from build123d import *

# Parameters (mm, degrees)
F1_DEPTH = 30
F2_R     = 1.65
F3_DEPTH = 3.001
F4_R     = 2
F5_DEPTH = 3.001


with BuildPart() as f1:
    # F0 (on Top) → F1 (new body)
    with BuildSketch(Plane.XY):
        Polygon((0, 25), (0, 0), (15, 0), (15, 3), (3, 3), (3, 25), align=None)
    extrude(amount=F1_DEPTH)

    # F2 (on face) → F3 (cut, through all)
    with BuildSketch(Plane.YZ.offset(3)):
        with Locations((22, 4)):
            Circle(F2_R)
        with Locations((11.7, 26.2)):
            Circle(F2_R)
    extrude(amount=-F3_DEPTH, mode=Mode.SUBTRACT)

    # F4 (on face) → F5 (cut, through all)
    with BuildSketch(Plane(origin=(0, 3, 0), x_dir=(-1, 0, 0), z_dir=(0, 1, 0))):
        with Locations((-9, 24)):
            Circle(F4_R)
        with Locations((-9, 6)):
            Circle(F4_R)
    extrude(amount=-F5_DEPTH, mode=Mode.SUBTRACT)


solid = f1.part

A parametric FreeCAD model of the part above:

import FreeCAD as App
import Part
import Sketcher
from FreeCAD import Vector
Q = App.Units.Quantity

doc = App.newDocument("Part")
body = doc.addObject("PartDesign::Body", "Body")

sketch1 = doc.addObject("Sketcher::SketchObject", "Sketch")
body.addObject(sketch1)
sketch1.AttachmentSupport = (doc.XY_Plane, [""])
sketch1.MapMode = "FlatFace"
sketch1.addGeometry([
    Part.LineSegment(Vector(0, 25, 0), Vector(0, 0, 0)),
    Part.LineSegment(Vector(0, 0, 0), Vector(15, 0, 0)),
    Part.LineSegment(Vector(15, 0, 0), Vector(15, 3, 0)),
    Part.LineSegment(Vector(15, 3, 0), Vector(3, 3, 0)),
    Part.LineSegment(Vector(3, 3, 0), Vector(3, 25, 0)),
    Part.LineSegment(Vector(3, 25, 0), Vector(0, 25, 0)),
], False)
sketch1.addConstraint([
    Sketcher.Constraint("Coincident", 0, 2, 1, 1),
    Sketcher.Constraint("Coincident", 1, 2, 2, 1),
    Sketcher.Constraint("Coincident", 2, 2, 3, 1),
    Sketcher.Constraint("Coincident", 3, 2, 4, 1),
    Sketcher.Constraint("Coincident", 4, 2, 5, 1),
    Sketcher.Constraint("Coincident", 5, 2, 0, 1),
    Sketcher.Constraint("Vertical", 0),
    Sketcher.Constraint("Horizontal", 1),
    Sketcher.Constraint("Vertical", 2),
    Sketcher.Constraint("Horizontal", 3),
    Sketcher.Constraint("Vertical", 4),
    Sketcher.Constraint("Horizontal", 5),
    Sketcher.Constraint("Coincident", 0, 2, -1, 1),
    Sketcher.Constraint("Equal", 5, 2),
    Sketcher.Constraint("DistanceX", 1, 1, 1, 2, Q("15 mm")),
    Sketcher.Constraint("DistanceX", 3, 2, 3, 1, Q("12 mm")),
    Sketcher.Constraint("DistanceY", 0, 2, 0, 1, Q("25 mm")),
])
pad1 = doc.addObject("PartDesign::Pad", "Pad")
body.addObject(pad1)
pad1.Profile = sketch1
pad1.Length = 30

sketch2 = doc.addObject("Sketcher::SketchObject", "Sketch001")
body.addObject(sketch2)
sketch2.AttachmentSupport = (doc.YZ_Plane, [""])
sketch2.MapMode = "FlatFace"
sketch2.AttachmentOffset = App.Placement(Vector(0, 0, 3), App.Rotation())
sketch2.addGeometry([
    Part.Circle(Vector(22, 4, 0), Vector(0, 0, 1), 1.6),
    Part.Circle(Vector(11.7, 26.2, 0), Vector(0, 0, 1), 1.6),
], False)
sketch2.addConstraint([
    Sketcher.Constraint("Equal", 0, 1),
    Sketcher.Constraint("Diameter", 0, Q("3.3 mm")),
    Sketcher.Constraint("DistanceX", -1, 1, 0, 3, Q("22 mm")),
    Sketcher.Constraint("DistanceY", -1, 1, 0, 3, Q("4 mm")),
    Sketcher.Constraint("DistanceX", -1, 1, 1, 3, Q("11.7 mm")),
    Sketcher.Constraint("DistanceY", -1, 1, 1, 3, Q("26.2 mm")),
])
pocket1 = doc.addObject("PartDesign::Pocket", "Pocket")
body.addObject(pocket1)
pocket1.Profile = sketch2
pocket1.Type = "ThroughAll"

sketch3 = doc.addObject("Sketcher::SketchObject", "Sketch002")
body.addObject(sketch3)
sketch3.AttachmentSupport = (doc.XZ_Plane, [""])
sketch3.MapMode = "FlatFace"
sketch3.AttachmentOffset = App.Placement(Vector(0, 0, -3), App.Rotation())
sketch3.addGeometry([
    Part.Circle(Vector(9, 24, 0), Vector(0, 0, 1), 2),
    Part.Circle(Vector(9, 6, 0), Vector(0, 0, 1), 2),
], False)
sketch3.addConstraint([
    Sketcher.Constraint("Equal", 0, 1),
    Sketcher.Constraint("Vertical", 0, 3, 1, 3),
    Sketcher.Constraint("Diameter", 0, Q("4 mm")),
    Sketcher.Constraint("DistanceX", -1, 1, 0, 3, Q("9 mm")),
    Sketcher.Constraint("DistanceY", -1, 1, 0, 3, Q("24 mm")),
    Sketcher.Constraint("DistanceY", -1, 1, 1, 3, Q("6 mm")),
])
pocket2 = doc.addObject("PartDesign::Pocket", "Pocket001")
body.addObject(pocket2)
pocket2.Profile = sketch3
pocket2.Type = "ThroughAll"
pocket2.Reversed = True

doc.recompute()
